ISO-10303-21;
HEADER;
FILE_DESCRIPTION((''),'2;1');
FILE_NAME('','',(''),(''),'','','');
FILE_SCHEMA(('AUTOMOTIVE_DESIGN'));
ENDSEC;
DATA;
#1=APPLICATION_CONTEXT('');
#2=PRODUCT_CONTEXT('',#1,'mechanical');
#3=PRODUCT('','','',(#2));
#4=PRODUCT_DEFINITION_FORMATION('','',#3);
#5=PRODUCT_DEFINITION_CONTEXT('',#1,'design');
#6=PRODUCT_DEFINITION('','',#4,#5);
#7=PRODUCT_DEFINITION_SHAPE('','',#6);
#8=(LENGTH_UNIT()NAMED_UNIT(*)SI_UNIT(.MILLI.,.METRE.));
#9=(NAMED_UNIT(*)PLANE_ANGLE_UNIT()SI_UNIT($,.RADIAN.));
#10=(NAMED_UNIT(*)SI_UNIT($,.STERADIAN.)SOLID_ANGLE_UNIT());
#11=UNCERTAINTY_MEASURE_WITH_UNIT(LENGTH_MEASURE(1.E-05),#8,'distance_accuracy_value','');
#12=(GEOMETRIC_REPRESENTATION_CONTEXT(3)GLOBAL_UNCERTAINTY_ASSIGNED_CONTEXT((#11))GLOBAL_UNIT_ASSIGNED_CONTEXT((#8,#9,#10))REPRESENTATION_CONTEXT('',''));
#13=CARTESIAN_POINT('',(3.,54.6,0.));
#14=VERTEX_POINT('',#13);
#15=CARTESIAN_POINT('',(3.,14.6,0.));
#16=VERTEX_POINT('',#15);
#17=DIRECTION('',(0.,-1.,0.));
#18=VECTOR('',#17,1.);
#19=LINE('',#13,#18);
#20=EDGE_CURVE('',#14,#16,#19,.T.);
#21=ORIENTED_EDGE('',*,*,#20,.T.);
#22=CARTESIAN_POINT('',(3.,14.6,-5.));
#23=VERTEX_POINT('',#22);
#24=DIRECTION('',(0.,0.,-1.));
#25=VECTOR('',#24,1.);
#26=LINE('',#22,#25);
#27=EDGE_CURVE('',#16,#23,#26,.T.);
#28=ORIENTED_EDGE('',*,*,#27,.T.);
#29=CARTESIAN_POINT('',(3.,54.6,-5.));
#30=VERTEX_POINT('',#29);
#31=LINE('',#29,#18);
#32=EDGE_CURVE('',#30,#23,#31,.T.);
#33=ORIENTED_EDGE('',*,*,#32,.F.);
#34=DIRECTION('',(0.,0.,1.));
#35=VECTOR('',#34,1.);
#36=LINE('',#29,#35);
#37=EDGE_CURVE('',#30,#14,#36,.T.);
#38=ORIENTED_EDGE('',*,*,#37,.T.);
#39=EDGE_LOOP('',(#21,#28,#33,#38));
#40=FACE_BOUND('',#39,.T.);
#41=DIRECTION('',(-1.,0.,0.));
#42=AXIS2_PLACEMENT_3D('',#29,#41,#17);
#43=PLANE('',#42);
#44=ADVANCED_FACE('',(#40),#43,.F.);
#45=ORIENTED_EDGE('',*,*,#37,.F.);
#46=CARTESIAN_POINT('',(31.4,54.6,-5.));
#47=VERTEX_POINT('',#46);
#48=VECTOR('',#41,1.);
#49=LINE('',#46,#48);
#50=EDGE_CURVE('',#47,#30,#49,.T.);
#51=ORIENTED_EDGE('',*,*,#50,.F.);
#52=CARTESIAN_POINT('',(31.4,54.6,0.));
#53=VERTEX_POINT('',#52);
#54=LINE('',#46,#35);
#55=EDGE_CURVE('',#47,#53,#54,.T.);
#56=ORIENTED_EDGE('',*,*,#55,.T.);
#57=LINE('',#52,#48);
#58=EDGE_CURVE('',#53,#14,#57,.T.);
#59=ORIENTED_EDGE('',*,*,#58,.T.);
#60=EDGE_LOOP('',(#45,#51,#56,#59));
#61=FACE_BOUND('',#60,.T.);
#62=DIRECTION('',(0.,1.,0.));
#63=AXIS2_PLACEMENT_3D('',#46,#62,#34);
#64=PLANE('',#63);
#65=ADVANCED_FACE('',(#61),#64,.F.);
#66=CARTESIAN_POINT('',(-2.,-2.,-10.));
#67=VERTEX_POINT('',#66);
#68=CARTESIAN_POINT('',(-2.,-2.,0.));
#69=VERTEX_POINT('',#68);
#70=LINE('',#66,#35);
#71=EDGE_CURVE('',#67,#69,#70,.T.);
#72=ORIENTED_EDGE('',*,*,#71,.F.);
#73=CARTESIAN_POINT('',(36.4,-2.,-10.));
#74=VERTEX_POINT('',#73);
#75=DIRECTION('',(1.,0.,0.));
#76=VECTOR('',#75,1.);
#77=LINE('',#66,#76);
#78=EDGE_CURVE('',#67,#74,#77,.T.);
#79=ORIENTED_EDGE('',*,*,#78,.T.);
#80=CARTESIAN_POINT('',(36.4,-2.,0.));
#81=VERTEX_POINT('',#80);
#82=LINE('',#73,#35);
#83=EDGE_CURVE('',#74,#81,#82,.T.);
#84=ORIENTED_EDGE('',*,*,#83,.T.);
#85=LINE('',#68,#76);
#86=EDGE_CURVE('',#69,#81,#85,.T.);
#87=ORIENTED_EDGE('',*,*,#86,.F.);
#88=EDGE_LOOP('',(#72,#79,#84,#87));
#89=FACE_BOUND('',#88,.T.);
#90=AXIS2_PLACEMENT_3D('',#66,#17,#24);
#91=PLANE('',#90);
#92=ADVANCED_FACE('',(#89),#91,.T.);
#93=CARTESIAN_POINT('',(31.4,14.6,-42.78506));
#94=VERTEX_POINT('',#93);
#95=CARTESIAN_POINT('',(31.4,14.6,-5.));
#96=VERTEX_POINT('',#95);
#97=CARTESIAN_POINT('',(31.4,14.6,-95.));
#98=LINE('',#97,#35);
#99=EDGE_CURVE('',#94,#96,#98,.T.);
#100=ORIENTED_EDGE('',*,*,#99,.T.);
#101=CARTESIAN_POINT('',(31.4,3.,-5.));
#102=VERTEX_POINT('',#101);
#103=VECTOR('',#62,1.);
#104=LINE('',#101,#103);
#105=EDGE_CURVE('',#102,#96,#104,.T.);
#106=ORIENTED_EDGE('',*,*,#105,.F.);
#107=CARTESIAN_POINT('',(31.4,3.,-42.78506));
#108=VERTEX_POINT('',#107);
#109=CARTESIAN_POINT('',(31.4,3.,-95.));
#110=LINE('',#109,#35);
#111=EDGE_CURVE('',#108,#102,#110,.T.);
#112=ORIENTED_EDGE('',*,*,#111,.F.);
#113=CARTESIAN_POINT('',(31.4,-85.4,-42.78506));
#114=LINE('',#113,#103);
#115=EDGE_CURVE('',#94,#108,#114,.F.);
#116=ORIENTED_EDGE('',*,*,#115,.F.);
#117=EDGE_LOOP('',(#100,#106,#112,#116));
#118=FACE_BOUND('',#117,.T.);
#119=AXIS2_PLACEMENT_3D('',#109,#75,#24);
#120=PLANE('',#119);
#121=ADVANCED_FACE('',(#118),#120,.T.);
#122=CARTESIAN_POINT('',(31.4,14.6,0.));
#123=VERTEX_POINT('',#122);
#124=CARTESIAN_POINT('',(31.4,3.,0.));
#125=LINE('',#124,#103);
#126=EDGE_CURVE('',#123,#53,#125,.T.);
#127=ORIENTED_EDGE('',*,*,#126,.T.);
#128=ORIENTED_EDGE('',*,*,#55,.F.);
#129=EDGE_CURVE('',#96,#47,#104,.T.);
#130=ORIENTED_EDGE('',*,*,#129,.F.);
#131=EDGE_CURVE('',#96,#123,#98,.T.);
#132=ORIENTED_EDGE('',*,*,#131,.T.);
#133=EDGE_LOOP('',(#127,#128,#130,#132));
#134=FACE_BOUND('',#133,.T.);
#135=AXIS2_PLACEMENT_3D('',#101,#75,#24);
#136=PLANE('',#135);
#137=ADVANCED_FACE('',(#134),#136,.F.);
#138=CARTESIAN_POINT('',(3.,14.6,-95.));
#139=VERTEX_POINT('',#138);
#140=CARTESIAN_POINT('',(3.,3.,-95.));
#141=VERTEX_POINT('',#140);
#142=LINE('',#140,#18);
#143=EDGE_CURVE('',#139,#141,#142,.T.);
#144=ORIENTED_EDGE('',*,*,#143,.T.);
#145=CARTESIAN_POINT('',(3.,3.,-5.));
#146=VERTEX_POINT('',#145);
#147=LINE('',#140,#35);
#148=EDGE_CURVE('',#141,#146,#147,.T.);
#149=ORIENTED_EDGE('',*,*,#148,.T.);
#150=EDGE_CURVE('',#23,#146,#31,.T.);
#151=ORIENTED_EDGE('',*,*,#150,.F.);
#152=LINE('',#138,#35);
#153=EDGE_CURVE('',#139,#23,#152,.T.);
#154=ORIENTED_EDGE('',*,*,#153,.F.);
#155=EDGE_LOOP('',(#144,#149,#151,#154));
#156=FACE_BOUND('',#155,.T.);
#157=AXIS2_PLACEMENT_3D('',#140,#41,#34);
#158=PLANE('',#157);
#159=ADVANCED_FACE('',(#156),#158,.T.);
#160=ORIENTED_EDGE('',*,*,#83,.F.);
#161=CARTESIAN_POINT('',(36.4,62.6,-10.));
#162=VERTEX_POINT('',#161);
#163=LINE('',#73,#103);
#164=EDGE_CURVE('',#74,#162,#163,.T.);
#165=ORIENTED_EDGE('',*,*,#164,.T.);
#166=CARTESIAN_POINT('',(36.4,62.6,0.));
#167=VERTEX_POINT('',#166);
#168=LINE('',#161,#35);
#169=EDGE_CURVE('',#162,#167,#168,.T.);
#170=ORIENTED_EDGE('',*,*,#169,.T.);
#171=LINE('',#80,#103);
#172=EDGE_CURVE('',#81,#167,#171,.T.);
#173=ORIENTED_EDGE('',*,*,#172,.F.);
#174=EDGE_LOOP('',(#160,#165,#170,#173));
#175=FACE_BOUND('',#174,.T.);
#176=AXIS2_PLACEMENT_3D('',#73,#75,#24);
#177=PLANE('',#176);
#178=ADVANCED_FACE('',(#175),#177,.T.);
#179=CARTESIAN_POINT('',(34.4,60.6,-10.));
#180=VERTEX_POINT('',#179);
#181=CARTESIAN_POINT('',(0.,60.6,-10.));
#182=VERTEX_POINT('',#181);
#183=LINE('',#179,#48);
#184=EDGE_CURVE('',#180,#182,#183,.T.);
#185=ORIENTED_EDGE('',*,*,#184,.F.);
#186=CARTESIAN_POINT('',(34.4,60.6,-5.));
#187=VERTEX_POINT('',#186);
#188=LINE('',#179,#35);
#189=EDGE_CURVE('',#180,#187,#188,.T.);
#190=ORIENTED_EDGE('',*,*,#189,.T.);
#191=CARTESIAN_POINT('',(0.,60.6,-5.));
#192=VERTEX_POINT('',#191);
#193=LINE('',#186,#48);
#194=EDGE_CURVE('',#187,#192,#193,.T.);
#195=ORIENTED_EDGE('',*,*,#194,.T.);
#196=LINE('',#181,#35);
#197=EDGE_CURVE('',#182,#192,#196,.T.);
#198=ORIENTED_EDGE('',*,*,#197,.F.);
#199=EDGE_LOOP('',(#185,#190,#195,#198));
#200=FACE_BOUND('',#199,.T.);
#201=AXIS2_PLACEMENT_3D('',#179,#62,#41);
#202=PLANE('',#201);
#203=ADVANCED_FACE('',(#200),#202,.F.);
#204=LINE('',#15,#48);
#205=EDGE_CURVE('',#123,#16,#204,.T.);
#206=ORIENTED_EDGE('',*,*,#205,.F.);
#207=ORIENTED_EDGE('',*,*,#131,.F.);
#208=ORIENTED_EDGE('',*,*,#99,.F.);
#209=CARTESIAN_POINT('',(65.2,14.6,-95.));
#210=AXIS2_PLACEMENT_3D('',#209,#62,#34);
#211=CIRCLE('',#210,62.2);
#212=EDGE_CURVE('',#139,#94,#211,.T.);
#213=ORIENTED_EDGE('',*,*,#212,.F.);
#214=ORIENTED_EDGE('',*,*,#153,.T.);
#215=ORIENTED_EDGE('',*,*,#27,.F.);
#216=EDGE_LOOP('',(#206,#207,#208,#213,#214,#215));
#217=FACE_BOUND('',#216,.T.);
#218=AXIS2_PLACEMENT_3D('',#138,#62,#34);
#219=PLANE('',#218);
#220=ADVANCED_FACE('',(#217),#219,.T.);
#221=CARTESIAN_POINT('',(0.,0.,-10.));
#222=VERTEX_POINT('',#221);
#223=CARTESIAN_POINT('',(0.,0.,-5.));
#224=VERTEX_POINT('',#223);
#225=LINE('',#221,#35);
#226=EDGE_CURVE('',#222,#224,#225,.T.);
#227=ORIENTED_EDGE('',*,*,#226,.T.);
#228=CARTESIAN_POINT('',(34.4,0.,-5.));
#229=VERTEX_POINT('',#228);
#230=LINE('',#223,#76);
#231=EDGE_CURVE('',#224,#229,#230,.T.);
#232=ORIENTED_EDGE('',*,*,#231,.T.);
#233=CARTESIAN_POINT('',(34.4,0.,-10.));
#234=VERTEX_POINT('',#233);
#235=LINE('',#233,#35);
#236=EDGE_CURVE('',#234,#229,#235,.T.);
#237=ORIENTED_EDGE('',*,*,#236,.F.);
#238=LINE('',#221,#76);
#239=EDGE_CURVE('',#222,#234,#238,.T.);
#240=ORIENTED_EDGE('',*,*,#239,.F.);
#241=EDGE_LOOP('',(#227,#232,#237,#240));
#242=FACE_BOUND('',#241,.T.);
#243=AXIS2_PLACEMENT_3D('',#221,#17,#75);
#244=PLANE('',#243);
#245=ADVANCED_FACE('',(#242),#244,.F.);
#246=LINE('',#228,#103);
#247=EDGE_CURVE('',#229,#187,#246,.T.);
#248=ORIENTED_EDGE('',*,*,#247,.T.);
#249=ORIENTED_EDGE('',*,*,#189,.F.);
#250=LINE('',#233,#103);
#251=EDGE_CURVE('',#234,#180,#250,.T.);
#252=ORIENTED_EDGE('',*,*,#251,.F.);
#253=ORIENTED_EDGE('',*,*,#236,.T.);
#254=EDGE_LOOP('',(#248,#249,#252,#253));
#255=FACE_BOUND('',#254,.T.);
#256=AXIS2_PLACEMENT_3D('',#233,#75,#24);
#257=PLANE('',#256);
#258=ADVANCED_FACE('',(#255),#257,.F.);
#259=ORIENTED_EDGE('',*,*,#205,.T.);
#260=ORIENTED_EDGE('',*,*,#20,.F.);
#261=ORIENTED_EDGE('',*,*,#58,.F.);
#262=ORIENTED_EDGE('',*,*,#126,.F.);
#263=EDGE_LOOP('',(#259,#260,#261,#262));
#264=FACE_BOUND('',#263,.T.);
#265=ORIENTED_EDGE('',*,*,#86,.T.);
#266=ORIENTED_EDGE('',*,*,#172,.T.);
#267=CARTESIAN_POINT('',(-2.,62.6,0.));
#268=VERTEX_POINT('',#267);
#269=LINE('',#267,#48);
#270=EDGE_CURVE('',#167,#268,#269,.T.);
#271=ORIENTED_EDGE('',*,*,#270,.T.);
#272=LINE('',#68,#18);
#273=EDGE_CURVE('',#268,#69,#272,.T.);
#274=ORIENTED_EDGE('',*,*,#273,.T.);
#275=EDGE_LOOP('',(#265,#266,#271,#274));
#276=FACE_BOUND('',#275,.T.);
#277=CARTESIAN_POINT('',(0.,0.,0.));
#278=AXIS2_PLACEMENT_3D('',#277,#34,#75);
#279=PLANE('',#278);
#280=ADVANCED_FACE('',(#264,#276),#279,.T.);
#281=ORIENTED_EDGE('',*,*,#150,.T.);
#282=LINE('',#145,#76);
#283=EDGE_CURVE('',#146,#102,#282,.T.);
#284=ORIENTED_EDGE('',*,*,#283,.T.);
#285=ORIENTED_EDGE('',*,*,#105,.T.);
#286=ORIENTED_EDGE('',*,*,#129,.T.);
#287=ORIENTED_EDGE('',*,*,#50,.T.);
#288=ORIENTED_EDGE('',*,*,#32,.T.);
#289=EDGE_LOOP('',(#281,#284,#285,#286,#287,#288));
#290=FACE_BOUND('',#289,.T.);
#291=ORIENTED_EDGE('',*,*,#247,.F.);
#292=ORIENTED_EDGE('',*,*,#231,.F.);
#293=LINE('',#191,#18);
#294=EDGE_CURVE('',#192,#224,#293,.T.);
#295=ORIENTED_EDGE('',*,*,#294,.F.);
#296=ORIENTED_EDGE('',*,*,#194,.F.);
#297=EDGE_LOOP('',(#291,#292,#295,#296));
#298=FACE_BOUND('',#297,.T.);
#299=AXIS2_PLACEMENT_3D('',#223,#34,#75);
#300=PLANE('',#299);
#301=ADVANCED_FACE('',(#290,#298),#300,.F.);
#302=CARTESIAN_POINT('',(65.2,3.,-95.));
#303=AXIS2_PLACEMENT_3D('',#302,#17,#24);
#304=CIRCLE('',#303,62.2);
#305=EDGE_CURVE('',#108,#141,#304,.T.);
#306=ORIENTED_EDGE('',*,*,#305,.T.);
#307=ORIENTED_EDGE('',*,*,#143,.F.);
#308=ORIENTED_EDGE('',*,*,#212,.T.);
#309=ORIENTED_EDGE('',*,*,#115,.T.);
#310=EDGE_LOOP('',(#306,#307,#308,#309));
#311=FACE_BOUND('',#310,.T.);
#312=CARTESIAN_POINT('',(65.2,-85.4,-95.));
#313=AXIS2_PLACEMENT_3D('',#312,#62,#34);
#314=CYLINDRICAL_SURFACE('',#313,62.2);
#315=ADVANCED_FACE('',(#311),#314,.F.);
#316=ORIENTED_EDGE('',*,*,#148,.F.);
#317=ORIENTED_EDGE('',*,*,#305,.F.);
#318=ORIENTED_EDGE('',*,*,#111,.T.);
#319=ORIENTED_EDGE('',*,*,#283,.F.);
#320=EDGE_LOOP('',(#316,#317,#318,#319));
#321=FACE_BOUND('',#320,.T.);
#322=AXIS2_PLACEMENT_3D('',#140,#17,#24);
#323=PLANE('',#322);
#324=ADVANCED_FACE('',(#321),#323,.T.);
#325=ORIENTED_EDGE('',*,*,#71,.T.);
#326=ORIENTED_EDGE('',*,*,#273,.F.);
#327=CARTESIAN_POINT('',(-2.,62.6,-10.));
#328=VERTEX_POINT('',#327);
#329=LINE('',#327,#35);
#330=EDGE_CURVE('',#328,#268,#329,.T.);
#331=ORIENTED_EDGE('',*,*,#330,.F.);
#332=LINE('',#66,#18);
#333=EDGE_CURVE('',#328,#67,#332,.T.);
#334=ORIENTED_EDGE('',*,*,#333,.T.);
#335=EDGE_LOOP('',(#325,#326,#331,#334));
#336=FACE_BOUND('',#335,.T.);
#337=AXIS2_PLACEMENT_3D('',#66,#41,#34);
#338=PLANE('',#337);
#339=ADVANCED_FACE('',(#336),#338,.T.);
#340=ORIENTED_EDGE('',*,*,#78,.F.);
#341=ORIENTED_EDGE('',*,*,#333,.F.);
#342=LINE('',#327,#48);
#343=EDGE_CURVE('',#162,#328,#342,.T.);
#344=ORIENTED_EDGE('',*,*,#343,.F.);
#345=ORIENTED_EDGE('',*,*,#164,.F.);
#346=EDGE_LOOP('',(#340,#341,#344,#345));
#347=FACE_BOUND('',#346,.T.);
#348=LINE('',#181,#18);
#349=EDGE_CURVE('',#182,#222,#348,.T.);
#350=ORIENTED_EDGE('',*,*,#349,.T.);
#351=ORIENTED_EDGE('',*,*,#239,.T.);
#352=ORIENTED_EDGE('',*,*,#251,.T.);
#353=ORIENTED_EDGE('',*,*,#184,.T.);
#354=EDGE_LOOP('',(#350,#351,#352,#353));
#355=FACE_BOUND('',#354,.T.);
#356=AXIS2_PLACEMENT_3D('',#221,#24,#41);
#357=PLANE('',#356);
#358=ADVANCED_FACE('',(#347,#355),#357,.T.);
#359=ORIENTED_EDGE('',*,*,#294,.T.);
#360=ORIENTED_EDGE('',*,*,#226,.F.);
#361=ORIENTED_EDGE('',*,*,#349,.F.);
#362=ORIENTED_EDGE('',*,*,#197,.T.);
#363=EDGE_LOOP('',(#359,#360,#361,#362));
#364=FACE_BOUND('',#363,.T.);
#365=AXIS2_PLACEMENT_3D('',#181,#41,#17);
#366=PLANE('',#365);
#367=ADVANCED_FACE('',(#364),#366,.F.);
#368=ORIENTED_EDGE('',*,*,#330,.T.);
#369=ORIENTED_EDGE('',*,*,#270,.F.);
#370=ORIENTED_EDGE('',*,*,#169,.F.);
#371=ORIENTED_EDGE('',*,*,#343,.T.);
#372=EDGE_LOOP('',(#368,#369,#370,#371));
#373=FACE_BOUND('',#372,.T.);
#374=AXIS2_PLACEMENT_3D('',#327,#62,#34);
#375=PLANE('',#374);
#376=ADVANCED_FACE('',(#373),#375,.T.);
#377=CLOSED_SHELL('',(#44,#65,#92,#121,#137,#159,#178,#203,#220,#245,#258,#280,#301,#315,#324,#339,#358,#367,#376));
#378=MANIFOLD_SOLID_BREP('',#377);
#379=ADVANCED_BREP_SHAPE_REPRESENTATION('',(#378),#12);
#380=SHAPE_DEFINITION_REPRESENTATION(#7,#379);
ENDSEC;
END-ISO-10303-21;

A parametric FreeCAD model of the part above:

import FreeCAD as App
import Part
import Sketcher


def add_polygon(sketch, points):
    """Adds a closed chain of lines whose ends are joined by coincident constraints."""
    first, n = sketch.GeometryCount, len(points)
    for a, b in zip(points, points[1:] + points[:1]):
        sketch.addGeometry(Part.LineSegment(App.Vector(*a, 0), App.Vector(*b, 0)), False)
    for i in range(n):
        sketch.addConstraint(Sketcher.Constraint("Coincident", first + i, 2, first + (i + 1) % n, 1))

doc = App.newDocument("Part")
body = doc.addObject("PartDesign::Body", "Body")

sketch1 = body.newObject("Sketcher::SketchObject", "Sketch")
sketch1.AttachmentSupport = (doc.getObject("XY_Plane"), [""])
sketch1.MapMode = "FlatFace"
add_polygon(sketch1, [(0, 61), (0, 0), (34, 0), (34, 61)])
add_polygon(sketch1, [(31, 3), (3, 3), (3, 55), (31, 55)])
sketch1.addConstraint([
    Sketcher.Constraint("Vertical", 0),
    Sketcher.Constraint("Horizontal", 1),
    Sketcher.Constraint("Vertical", 2),
    Sketcher.Constraint("Horizontal", 3),
    Sketcher.Constraint("Horizontal", 4),
    Sketcher.Constraint("Vertical", 5),
    Sketcher.Constraint("Horizontal", 6),
    Sketcher.Constraint("Vertical", 7),
    Sketcher.Constraint("Coincident", 0, 2, -1, 1),
    Sketcher.Constraint("DistanceX", 1, 1, 1, 2, 34.4),
    Sketcher.Constraint("DistanceX", 4, 2, 4, 1, 28.4),
    Sketcher.Constraint("DistanceY", 0, 2, 0, 1, 60.6),
    Sketcher.Constraint("DistanceY", 5, 1, 5, 2, 51.6),
    Sketcher.Constraint("DistanceX", -1, 1, 4, 2, 3.0),
    Sketcher.Constraint("DistanceY", -1, 1, 4, 2, 3.0),
])
pad1 = body.newObject("PartDesign::Pad", "Pad")
pad1.Profile = sketch1
pad1.Length = 5
pad1.Reversed = True

sketch2 = body.newObject("Sketcher::SketchObject", "Sketch001")
sketch2.AttachmentSupport = (doc.getObject("XY_Plane"), [""])
sketch2.MapMode = "FlatFace"
add_polygon(sketch2, [(3, 15), (3, 3), (31, 3), (31, 15)])
sketch2.addConstraint([
    Sketcher.Constraint("Vertical", 0),
    Sketcher.Constraint("Horizontal", 1),
    Sketcher.Constraint("Vertical", 2),
    Sketcher.Constraint("Horizontal", 3),
    Sketcher.Constraint("DistanceX", 1, 1, 1, 2, 28.4),
    Sketcher.Constraint("DistanceY", 0, 2, 0, 1, 11.6),
    Sketcher.Constraint("DistanceX", -1, 1, 0, 2, 3.0),
    Sketcher.Constraint("DistanceY", -1, 1, 0, 2, 3.0),
])
pad2 = body.newObject("PartDesign::Pad", "Pad001")
pad2.Profile = sketch2
pad2.Length = 95
pad2.Reversed = True

sketch3 = body.newObject("Sketcher::SketchObject", "Sketch002")
sketch3.AttachmentSupport = (doc.getObject("XZ_Plane"), [""])
sketch3.MapMode = "FlatFace"
sketch3.AttachmentOffset = App.Placement(App.Vector(0, 0, -14.6), App.Rotation())
sketch3.addGeometry(Part.Circle(App.Vector(65, -95, 0), App.Vector(0, 0, 1), 62), False)
sketch3.addConstraint([
    Sketcher.Constraint("Diameter", 0, 124.4),
    Sketcher.Constraint("DistanceY", 0, 3, -1, 1, 95.0),
    Sketcher.Constraint("DistanceX", -1, 1, 0, 3, 65.2),
])
pocket1 = body.newObject("PartDesign::Pocket", "Pocket")
pocket1.Profile = sketch3
pocket1.Length = 100
pocket1.Reversed = True

sketch4 = body.newObject("Sketcher::SketchObject", "Sketch003")
sketch4.AttachmentSupport = (doc.getObject("XY_Plane"), [""])
sketch4.MapMode = "FlatFace"
add_polygon(sketch4, [(-2, 63), (-2, -2), (36, -2), (36, 63)])
add_polygon(sketch4, [(34, 0), (0, 0), (0, 61), (34, 61)])
sketch4.addConstraint([
    Sketcher.Constraint("Vertical", 0),
    Sketcher.Constraint("Horizontal", 1),
    Sketcher.Constraint("Vertical", 2),
    Sketcher.Constraint("Horizontal", 3),
    Sketcher.Constraint("Horizontal", 4),
    Sketcher.Constraint("Vertical", 5),
    Sketcher.Constraint("Horizontal", 6),
    Sketcher.Constraint("Vertical", 7),
    Sketcher.Constraint("Coincident", 4, 2, -1, 1),
    Sketcher.Constraint("DistanceX", 1, 1, 1, 2, 38.4),
    Sketcher.Constraint("DistanceX", 4, 2, 4, 1, 34.4),
    Sketcher.Constraint("DistanceY", 0, 2, 0, 1, 64.6),
    Sketcher.Constraint("DistanceY", 5, 1, 5, 2, 60.6),
    Sketcher.Constraint("DistanceX", 0, 2, -1, 1, 2.0),
    Sketcher.Constraint("DistanceY", 0, 2, -1, 1, 2.0),
])
pad3 = body.newObject("PartDesign::Pad", "Pad002")
pad3.Profile = sketch4
pad3.Length = 10
pad3.Reversed = True

doc.recompute()
